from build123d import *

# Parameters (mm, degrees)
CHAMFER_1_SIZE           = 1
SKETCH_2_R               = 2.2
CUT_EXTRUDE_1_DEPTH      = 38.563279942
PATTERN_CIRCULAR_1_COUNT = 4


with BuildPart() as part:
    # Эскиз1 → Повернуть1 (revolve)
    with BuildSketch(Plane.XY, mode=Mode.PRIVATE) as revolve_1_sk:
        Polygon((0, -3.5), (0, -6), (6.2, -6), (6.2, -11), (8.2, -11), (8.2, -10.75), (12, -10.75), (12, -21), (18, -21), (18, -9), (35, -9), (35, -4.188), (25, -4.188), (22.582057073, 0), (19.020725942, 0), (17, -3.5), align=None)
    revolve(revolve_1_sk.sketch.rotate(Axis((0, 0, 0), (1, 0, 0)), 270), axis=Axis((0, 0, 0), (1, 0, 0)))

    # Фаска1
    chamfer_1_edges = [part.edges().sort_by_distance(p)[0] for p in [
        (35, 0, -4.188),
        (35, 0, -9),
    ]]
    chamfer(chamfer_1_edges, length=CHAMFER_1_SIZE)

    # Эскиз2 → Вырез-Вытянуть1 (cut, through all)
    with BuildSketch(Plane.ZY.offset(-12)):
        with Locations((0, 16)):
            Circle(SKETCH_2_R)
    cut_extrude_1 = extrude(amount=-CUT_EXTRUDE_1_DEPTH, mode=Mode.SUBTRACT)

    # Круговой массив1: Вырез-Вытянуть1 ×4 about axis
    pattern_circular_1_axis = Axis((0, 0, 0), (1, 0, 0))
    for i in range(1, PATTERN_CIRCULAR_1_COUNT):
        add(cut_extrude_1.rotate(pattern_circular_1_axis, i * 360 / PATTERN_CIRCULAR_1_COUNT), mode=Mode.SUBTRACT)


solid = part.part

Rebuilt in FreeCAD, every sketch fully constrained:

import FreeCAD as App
import Part
import Sketcher
from FreeCAD import Vector
Q = App.Units.Quantity


def edges_at(feature, points):
    """Names of the edges that pass closest to the given points."""
    edges = feature.Shape.Edges
    near = lambda p: min(range(len(edges)), key=lambda i: edges[i].distToShape(Part.Vertex(*p))[0])
    return sorted({f"Edge{near(p) + 1}" for p in points})


def add_polygon(sketch, points):
    """Adds a closed chain of lines whose ends are joined by coincident constraints."""
    first, n = sketch.GeometryCount, len(points)
    for a, b in zip(points, points[1:] + points[:1]):
        sketch.addGeometry(Part.LineSegment(App.Vector(*a, 0), App.Vector(*b, 0)), False)
    for i in range(n):
        sketch.addConstraint(Sketcher.Constraint("Coincident", first + i, 2, first + (i + 1) % n, 1))

doc = App.newDocument("Part")
params = doc.addObject("Spreadsheet::Sheet", "Params")
for row, (alias, value) in enumerate([
    ("sketch1_width", "2 mm"),
    ("sketch1_width2", "6 mm"),
    ("sketch1_width3", "17 mm"),
    ("sketch1_width4", "10 mm"),
    ("sketch1_height", "5 mm"),
    ("revolution_angle", "360 deg"),
    ("chamfer_size", "1 mm"),
    ("sketch2_diameter", "4.4 mm"),
], start=1):
    params.set(f"A{row}", alias)
    params.set(f"B{row}", "=" + value)
    params.setAlias(f"B{row}", alias)

body = doc.addObject("PartDesign::Body", "Body")

# Sketch on XY plane
sketch1 = doc.addObject("Sketcher::SketchObject", "Sketch")
body.addObject(sketch1)
sketch1.AttachmentSupport = (doc.XY_Plane, [""])
sketch1.MapMode = "FlatFace"
add_polygon(sketch1, [(0, -3.5), (0, -6), (6.2, -6), (6.2, -11), (8.2, -11), (8.2, -10.75), (12, -10.75), (12, -21), (18, -21), (18, -9), (35, -9), (35, -4.188), (25, -4.188), (22.582057, 0), (19.020726, 0), (17, -3.5)])  # lines 0-15
sketch1.addConstraint(Sketcher.Constraint("Vertical", 0))
sketch1.addConstraint(Sketcher.Constraint("Horizontal", 1))
sketch1.addConstraint(Sketcher.Constraint("Vertical", 2))
sketch1.addConstraint(Sketcher.Constraint("Horizontal", 3))
sketch1.addConstraint(Sketcher.Constraint("Vertical", 4))
sketch1.addConstraint(Sketcher.Constraint("Horizontal", 5))
sketch1.addConstraint(Sketcher.Constraint("Vertical", 6))
sketch1.addConstraint(Sketcher.Constraint("Horizontal", 7))
sketch1.addConstraint(Sketcher.Constraint("Vertical", 8))
sketch1.addConstraint(Sketcher.Constraint("Horizontal", 9))
sketch1.addConstraint(Sketcher.Constraint("Vertical", 10))
sketch1.addConstraint(Sketcher.Constraint("Horizontal", 11))
sketch1.addConstraint(Sketcher.Constraint("Horizontal", 13))
sketch1.addConstraint(Sketcher.Constraint("Horizontal", 15))
sketch1.addConstraint(Sketcher.Constraint("PointOnObject", 0, 2, -2))
sketch1.addConstraint(Sketcher.Constraint("PointOnObject", 12, 2, -1))
sketch1.addConstraint(Sketcher.Constraint("Equal", 9, 15))
sketch1.addConstraint(Sketcher.Constraint("DistanceX", 3, 1, 3, 2, 2.0))
sketch1.addConstraint(Sketcher.Constraint("DistanceX", 7, 1, 7, 2, 6.0))
sketch1.addConstraint(Sketcher.Constraint("DistanceX", 9, 1, 9, 2, 17.0))
sketch1.addConstraint(Sketcher.Constraint("DistanceX", 11, 2, 11, 1, 10.0))
sketch1.addConstraint(Sketcher.Constraint("DistanceY", 2, 2, 2, 1, 5.0))
sketch1.addConstraint(Sketcher.Constraint("DistanceY", 8, 1, 8, 2, 12.0))
sketch1.addConstraint(Sketcher.Constraint("Angle", 12, Q("120 deg")))
sketch1.addConstraint(Sketcher.Constraint("Angle", 14, Q("-120 deg")))
sketch1.addConstraint(Sketcher.Constraint("DistanceX", 1, 1, 1, 2, 6.2))
sketch1.addConstraint(Sketcher.Constraint("DistanceX", 5, 1, 5, 2, 3.8))
sketch1.addConstraint(Sketcher.Constraint("DistanceY", 0, 2, 0, 1, 2.5))
sketch1.addConstraint(Sketcher.Constraint("DistanceY", 0, 2, -1, 1, 6.0))
sketch1.addConstraint(Sketcher.Constraint("DistanceY", 6, 2, -1, 1, 21.0))
sketch1.addConstraint(Sketcher.Constraint("DistanceY", 4, 1, 4, 2, 0.25))
sketch1.addConstraint(Sketcher.Constraint("DistanceY", 10, 1, 10, 2, 4.812))
sketch1.setExpression("Constraints[33]", "Params.sketch1_width")
sketch1.setExpression("Constraints[34]", "Params.sketch1_width2")
sketch1.setExpression("Constraints[35]", "Params.sketch1_width3")
sketch1.setExpression("Constraints[36]", "Params.sketch1_width4")
sketch1.setExpression("Constraints[37]", "Params.sketch1_height")
revolution = doc.addObject("PartDesign::Revolution", "Revolution")
body.addObject(revolution)
revolution.Profile = sketch1
revolution.ReferenceAxis = (sketch1, ["H_Axis"])
revolution.setExpression("Angle", "Params.revolution_angle")
doc.recompute()

chamfer = doc.addObject("PartDesign::Chamfer", "Chamfer")
body.addObject(chamfer)
chamfer.Base = (revolution, edges_at(revolution, [(35, 0, -4.188), (35, 0, -9)]))
chamfer.setExpression("Size", "Params.chamfer_size")

# Sketch on YZ plane
sketch2 = doc.addObject("Sketcher::SketchObject", "Sketch001")
body.addObject(sketch2)
sketch2.AttachmentSupport = (doc.YZ_Plane, [""])
sketch2.MapMode = "FlatFace"
sketch2.AttachmentOffset = App.Placement(Vector(0, 0, 12), App.Rotation())
sketch2.addGeometry(Part.Circle(Vector(16, 0, 0), Vector(0, 0, 1), 2.2), False)
sketch2.addConstraint(Sketcher.Constraint("PointOnObject", 0, 3, -1))
sketch2.addConstraint(Sketcher.Constraint("Diameter", 0, 4.4))
sketch2.addConstraint(Sketcher.Constraint("DistanceX", -1, 1, 0, 3, 16.0))
sketch2.setExpression("Constraints[1]", "Params.sketch2_diameter")
pocket1 = doc.addObject("PartDesign::Pocket", "Pocket")
body.addObject(pocket1)
pocket1.Profile = sketch2
pocket1.Type = "ThroughAll"
pocket1.Reversed = True
doc.recompute()

polarpattern = doc.addObject("PartDesign::PolarPattern", "PolarPattern")
body.addObject(polarpattern)
polarpattern.Originals = [pocket1]
polarpattern.Axis = (doc.X_Axis, [""])
polarpattern.Angle = 360
polarpattern.Occurrences = 4
body.Tip = polarpattern

doc.recompute()
